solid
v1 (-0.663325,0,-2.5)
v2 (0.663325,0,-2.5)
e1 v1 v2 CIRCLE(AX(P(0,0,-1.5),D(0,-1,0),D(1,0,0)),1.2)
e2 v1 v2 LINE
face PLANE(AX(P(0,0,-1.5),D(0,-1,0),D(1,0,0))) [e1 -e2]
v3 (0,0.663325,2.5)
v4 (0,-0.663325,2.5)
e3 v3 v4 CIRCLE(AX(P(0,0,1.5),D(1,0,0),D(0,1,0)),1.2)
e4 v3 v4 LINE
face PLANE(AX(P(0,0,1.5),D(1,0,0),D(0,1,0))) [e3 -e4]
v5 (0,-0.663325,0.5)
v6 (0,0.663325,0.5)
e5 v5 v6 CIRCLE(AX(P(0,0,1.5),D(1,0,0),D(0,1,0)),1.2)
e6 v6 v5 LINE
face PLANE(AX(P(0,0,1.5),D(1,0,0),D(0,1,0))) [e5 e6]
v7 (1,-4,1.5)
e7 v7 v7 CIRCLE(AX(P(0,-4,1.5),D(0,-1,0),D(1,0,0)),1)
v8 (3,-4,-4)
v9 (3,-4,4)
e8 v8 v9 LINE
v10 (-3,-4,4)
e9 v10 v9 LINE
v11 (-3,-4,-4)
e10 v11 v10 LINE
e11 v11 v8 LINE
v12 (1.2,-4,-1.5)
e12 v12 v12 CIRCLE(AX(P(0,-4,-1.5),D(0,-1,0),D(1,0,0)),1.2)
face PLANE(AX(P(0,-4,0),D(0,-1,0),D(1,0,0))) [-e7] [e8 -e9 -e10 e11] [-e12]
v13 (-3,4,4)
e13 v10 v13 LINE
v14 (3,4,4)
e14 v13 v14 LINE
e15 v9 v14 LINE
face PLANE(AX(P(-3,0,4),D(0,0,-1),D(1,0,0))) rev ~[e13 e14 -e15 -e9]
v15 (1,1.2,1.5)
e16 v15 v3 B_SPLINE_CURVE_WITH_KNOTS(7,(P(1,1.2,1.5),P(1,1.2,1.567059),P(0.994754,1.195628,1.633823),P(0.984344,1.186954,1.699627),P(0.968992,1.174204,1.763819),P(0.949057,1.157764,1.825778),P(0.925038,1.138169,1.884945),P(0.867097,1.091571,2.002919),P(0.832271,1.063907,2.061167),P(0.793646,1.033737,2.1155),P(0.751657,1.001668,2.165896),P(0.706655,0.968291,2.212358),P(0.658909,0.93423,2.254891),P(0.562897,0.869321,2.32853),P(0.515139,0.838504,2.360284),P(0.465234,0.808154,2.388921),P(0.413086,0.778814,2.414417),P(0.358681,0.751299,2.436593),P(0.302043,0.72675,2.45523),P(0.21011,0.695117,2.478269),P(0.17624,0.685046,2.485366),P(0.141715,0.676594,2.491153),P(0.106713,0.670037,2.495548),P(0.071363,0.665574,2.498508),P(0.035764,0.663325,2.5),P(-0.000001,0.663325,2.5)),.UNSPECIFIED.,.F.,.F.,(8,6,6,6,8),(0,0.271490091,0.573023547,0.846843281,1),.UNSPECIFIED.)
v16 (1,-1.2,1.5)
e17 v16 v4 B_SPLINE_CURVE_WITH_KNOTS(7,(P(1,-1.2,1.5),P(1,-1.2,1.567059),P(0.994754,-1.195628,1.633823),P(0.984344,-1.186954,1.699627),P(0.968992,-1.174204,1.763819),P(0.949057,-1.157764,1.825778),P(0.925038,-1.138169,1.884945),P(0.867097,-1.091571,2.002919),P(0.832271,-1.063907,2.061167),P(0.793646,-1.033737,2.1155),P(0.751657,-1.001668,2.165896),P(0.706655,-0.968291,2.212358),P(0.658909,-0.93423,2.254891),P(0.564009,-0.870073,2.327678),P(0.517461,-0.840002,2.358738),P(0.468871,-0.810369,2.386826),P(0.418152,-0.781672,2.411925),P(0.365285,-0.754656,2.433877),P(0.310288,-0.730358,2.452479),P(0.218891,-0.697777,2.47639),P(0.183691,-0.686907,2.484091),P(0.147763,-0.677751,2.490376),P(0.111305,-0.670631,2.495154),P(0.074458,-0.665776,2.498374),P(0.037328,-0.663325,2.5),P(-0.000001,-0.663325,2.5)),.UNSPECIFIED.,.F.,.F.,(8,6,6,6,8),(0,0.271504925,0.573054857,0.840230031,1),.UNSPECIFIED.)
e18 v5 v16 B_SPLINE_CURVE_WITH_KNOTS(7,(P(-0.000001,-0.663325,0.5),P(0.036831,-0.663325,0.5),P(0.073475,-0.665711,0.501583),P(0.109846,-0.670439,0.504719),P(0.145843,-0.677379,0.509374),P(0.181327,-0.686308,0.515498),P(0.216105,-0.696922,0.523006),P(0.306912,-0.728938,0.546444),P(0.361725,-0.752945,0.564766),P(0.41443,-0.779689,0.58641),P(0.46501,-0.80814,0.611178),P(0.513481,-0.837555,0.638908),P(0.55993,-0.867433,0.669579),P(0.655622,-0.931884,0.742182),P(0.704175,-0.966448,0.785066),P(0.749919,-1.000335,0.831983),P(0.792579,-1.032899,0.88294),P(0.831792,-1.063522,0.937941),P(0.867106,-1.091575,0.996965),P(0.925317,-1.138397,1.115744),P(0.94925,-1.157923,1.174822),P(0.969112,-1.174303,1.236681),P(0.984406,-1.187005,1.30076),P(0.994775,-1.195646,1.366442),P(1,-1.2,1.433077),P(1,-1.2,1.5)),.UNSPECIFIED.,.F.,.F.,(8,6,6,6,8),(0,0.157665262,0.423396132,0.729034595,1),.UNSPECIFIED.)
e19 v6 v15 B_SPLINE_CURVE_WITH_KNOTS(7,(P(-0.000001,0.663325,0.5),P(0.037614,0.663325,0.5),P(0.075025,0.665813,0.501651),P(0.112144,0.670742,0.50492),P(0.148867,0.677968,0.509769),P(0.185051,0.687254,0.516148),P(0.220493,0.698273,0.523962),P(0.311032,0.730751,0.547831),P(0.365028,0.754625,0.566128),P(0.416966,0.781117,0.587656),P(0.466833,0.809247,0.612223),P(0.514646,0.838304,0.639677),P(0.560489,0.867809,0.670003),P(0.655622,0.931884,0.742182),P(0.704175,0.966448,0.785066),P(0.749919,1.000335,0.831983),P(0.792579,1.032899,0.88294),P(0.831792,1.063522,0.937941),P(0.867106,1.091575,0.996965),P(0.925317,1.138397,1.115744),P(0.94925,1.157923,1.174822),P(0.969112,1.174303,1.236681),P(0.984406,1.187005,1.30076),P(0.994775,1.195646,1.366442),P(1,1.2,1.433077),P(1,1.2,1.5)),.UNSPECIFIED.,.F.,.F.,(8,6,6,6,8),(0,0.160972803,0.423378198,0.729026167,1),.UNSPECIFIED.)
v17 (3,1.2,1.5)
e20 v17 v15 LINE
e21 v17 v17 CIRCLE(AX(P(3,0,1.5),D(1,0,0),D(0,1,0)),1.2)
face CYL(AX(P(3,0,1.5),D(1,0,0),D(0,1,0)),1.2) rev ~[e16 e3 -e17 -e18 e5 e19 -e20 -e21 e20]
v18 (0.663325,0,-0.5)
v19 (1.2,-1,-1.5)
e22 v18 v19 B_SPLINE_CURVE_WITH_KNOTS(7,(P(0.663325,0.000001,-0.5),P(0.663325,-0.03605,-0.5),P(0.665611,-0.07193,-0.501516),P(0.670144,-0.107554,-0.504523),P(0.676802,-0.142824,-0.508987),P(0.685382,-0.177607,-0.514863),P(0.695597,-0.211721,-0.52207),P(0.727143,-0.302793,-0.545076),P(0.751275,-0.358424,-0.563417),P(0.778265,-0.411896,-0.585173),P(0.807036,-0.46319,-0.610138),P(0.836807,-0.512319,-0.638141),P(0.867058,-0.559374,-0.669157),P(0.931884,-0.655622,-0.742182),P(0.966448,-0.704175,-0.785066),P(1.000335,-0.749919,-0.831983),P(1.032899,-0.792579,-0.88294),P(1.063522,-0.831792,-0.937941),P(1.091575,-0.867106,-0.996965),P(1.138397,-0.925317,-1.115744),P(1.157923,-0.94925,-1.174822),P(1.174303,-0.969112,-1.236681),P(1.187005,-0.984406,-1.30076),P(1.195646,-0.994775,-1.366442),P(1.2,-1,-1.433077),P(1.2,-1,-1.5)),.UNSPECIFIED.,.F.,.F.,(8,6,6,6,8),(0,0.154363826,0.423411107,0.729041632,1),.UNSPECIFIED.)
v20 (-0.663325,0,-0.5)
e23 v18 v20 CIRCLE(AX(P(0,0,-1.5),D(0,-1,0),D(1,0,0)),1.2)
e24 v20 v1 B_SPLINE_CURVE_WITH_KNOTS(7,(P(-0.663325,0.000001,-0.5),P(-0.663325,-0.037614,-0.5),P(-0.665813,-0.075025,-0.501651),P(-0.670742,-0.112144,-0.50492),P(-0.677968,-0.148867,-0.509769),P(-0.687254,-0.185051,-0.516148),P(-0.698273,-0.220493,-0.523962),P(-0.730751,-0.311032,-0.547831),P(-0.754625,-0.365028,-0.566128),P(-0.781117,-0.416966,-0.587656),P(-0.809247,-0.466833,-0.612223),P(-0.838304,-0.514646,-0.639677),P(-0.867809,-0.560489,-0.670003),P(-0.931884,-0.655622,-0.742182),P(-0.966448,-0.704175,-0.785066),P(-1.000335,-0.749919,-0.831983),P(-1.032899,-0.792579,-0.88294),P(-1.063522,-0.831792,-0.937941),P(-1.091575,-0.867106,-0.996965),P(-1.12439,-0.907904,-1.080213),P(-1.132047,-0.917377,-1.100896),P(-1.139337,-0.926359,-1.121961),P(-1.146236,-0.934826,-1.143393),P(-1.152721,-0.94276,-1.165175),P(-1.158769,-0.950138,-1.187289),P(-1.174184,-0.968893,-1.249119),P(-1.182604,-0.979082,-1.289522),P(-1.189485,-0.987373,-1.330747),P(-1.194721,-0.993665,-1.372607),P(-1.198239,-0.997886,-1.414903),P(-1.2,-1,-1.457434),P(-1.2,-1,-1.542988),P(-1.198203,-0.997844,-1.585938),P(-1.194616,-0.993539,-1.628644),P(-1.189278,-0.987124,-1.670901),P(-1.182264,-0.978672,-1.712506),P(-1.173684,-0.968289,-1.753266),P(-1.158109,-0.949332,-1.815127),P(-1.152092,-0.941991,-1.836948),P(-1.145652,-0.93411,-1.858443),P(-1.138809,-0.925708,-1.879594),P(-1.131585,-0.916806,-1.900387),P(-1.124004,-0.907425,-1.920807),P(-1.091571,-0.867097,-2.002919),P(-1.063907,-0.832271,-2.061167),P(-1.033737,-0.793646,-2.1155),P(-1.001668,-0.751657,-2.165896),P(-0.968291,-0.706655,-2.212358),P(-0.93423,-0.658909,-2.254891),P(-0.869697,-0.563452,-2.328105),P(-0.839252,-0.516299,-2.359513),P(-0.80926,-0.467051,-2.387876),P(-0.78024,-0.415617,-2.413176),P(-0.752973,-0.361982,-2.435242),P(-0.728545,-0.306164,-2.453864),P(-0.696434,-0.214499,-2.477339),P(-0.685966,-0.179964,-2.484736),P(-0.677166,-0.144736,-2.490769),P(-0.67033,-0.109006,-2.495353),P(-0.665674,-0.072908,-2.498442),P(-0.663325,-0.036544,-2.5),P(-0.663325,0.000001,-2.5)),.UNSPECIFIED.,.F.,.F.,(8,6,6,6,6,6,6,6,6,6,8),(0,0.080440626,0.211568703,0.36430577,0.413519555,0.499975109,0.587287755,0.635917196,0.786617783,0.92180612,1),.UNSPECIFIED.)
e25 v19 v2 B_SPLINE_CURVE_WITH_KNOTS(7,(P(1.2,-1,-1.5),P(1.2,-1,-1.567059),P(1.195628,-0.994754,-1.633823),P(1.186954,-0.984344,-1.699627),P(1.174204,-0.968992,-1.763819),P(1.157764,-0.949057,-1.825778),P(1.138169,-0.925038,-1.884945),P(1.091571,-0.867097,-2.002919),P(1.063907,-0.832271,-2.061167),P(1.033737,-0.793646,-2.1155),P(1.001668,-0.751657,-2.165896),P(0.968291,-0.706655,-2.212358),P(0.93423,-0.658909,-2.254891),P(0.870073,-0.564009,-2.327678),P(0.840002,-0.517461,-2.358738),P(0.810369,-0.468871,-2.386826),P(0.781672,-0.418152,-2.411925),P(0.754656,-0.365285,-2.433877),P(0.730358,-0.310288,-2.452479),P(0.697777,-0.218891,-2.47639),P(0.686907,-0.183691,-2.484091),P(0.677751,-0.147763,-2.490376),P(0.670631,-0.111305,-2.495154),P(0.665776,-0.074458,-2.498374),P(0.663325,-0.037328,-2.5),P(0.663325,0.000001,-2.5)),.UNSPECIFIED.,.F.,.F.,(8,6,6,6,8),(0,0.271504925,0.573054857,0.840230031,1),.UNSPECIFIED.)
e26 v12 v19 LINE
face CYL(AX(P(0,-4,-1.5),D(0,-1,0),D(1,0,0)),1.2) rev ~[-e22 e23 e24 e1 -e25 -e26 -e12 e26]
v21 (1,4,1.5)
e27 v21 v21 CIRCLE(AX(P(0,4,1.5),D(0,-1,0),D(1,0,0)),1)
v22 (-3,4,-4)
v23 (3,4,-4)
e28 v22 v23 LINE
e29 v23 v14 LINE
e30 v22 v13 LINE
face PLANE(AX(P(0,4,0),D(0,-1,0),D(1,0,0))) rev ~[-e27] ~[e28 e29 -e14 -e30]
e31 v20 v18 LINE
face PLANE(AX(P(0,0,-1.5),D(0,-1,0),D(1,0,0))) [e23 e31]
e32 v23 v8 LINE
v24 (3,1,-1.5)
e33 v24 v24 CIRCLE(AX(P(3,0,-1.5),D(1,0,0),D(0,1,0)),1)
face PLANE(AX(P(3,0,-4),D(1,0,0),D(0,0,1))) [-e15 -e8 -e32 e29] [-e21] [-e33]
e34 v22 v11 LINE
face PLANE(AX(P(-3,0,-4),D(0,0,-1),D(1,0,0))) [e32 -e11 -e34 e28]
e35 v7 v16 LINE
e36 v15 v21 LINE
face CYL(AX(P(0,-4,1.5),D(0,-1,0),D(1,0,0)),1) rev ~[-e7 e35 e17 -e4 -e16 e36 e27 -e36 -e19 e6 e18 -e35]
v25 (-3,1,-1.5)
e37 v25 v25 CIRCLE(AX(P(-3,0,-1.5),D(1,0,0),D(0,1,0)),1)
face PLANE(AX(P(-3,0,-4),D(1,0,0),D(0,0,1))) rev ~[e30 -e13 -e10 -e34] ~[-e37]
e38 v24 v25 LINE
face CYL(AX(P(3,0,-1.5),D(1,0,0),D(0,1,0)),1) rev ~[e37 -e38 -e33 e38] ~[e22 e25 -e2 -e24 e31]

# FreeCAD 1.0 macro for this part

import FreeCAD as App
import Part
import Sketcher
from FreeCAD import Vector

doc = App.newDocument("Part")
body = doc.addObject("PartDesign::Body", "Body")

sketch1 = body.newObject("Sketcher::SketchObject", "Sketch")
sketch1.AttachmentSupport = (doc.getObject("XZ_Plane"), [""])
sketch1.MapMode = "FlatFace"
sketch1.addGeometry([
    Part.LineSegment(Vector(-3, 4, 0), Vector(-3, -4, 0)),
    Part.LineSegment(Vector(-3, -4, 0), Vector(3, -4, 0)),
    Part.LineSegment(Vector(3, -4, 0), Vector(3, 4, 0)),
    Part.LineSegment(Vector(3, 4, 0), Vector(-3, 4, 0)),
], False)
sketch1.addConstraint([
    Sketcher.Constraint("Coincident", 0, 2, 1, 1),
    Sketcher.Constraint("Coincident", 1, 2, 2, 1),
    Sketcher.Constraint("Coincident", 2, 2, 3, 1),
    Sketcher.Constraint("Coincident", 3, 2, 0, 1),
    Sketcher.Constraint("Vertical", 0),
    Sketcher.Constraint("Horizontal", 1),
    Sketcher.Constraint("Vertical", 2),
    Sketcher.Constraint("Horizontal", 3),
    Sketcher.Constraint("Symmetric", 0, 2, 2, 2, -1, 1),
    Sketcher.Constraint("DistanceX", 1, 1, 1, 2, 6.0),
    Sketcher.Constraint("DistanceY", 0, 2, 0, 1, 8.0),
])
pad1 = body.newObject("PartDesign::Pad", "Pad")
pad1.Profile = sketch1
pad1.Type = "TwoLengths"
pad1.Length = 4
pad1.Length2 = 4

sketch2 = body.newObject("Sketcher::SketchObject", "Sketch001")
sketch2.AttachmentSupport = (doc.getObject("XZ_Plane"), [""])
sketch2.MapMode = "FlatFace"
sketch2.AttachmentOffset = App.Placement(Vector(0, 0, 4), App.Rotation())
sketch2.addGeometry(Part.Circle(Vector(0, 1.5, 0), Vector(0, 0, 1), 1), False)
sketch2.addConstraint([
    Sketcher.Constraint("PointOnObject", 0, 3, -2),
    Sketcher.Constraint("Diameter", 0, 2.0),
    Sketcher.Constraint("DistanceY", -1, 1, 0, 3, 1.5),
])
pocket1 = body.newObject("PartDesign::Pocket", "Pocket")
pocket1.Profile = sketch2
pocket1.Type = "ThroughAll"

sketch3 = body.newObject("Sketcher::SketchObject", "Sketch002")
sketch3.AttachmentSupport = (doc.getObject("YZ_Plane"), [""])
sketch3.MapMode = "FlatFace"
sketch3.AttachmentOffset = App.Placement(Vector(0, 0, 3), App.Rotation())
sketch3.addGeometry(Part.Circle(Vector(0, -1.5, 0), Vector(0, 0, 1), 1), False)
sketch3.addConstraint([
    Sketcher.Constraint("PointOnObject", 0, 3, -2),
    Sketcher.Constraint("Diameter", 0, 2.0),
    Sketcher.Constraint("DistanceY", 0, 3, -1, 1, 1.5),
])
pocket2 = body.newObject("PartDesign::Pocket", "Pocket001")
pocket2.Profile = sketch3
pocket2.Type = "ThroughAll"

sketch4 = body.newObject("Sketcher::SketchObject", "Sketch003")
sketch4.AttachmentSupport = (doc.getObject("XZ_Plane"), [""])
sketch4.MapMode = "FlatFace"
sketch4.AttachmentOffset = App.Placement(Vector(0, 0, 4), App.Rotation())
sketch4.addGeometry(Part.Circle(Vector(0, -1.5, 0), Vector(0, 0, 1), 1.2), False)
sketch4.addConstraint([
    Sketcher.Constraint("PointOnObject", 0, 3, -2),
    Sketcher.Constraint("Diameter", 0, 2.4),
    Sketcher.Constraint("DistanceY", 0, 3, -1, 1, 1.5),
])
pocket3 = body.newObject("PartDesign::Pocket", "Pocket002")
pocket3.Profile = sketch4
pocket3.Length = 4

sketch5 = body.newObject("Sketcher::SketchObject", "Sketch004")
sketch5.AttachmentSupport = (doc.getObject("YZ_Plane"), [""])
sketch5.MapMode = "FlatFace"
sketch5.AttachmentOffset = App.Placement(Vector(0, 0, 3), App.Rotation())
sketch5.addGeometry(Part.Circle(Vector(0, 1.5, 0), Vector(0, 0, 1), 1.2), False)
sketch5.addConstraint([
    Sketcher.Constraint("PointOnObject", 0, 3, -2),
    Sketcher.Constraint("Diameter", 0, 2.4),
    Sketcher.Constraint("DistanceY", -1, 1, 0, 3, 1.5),
])
pocket4 = body.newObject("PartDesign::Pocket", "Pocket003")
pocket4.Profile = sketch5
pocket4.Length = 3

doc.recompute()
